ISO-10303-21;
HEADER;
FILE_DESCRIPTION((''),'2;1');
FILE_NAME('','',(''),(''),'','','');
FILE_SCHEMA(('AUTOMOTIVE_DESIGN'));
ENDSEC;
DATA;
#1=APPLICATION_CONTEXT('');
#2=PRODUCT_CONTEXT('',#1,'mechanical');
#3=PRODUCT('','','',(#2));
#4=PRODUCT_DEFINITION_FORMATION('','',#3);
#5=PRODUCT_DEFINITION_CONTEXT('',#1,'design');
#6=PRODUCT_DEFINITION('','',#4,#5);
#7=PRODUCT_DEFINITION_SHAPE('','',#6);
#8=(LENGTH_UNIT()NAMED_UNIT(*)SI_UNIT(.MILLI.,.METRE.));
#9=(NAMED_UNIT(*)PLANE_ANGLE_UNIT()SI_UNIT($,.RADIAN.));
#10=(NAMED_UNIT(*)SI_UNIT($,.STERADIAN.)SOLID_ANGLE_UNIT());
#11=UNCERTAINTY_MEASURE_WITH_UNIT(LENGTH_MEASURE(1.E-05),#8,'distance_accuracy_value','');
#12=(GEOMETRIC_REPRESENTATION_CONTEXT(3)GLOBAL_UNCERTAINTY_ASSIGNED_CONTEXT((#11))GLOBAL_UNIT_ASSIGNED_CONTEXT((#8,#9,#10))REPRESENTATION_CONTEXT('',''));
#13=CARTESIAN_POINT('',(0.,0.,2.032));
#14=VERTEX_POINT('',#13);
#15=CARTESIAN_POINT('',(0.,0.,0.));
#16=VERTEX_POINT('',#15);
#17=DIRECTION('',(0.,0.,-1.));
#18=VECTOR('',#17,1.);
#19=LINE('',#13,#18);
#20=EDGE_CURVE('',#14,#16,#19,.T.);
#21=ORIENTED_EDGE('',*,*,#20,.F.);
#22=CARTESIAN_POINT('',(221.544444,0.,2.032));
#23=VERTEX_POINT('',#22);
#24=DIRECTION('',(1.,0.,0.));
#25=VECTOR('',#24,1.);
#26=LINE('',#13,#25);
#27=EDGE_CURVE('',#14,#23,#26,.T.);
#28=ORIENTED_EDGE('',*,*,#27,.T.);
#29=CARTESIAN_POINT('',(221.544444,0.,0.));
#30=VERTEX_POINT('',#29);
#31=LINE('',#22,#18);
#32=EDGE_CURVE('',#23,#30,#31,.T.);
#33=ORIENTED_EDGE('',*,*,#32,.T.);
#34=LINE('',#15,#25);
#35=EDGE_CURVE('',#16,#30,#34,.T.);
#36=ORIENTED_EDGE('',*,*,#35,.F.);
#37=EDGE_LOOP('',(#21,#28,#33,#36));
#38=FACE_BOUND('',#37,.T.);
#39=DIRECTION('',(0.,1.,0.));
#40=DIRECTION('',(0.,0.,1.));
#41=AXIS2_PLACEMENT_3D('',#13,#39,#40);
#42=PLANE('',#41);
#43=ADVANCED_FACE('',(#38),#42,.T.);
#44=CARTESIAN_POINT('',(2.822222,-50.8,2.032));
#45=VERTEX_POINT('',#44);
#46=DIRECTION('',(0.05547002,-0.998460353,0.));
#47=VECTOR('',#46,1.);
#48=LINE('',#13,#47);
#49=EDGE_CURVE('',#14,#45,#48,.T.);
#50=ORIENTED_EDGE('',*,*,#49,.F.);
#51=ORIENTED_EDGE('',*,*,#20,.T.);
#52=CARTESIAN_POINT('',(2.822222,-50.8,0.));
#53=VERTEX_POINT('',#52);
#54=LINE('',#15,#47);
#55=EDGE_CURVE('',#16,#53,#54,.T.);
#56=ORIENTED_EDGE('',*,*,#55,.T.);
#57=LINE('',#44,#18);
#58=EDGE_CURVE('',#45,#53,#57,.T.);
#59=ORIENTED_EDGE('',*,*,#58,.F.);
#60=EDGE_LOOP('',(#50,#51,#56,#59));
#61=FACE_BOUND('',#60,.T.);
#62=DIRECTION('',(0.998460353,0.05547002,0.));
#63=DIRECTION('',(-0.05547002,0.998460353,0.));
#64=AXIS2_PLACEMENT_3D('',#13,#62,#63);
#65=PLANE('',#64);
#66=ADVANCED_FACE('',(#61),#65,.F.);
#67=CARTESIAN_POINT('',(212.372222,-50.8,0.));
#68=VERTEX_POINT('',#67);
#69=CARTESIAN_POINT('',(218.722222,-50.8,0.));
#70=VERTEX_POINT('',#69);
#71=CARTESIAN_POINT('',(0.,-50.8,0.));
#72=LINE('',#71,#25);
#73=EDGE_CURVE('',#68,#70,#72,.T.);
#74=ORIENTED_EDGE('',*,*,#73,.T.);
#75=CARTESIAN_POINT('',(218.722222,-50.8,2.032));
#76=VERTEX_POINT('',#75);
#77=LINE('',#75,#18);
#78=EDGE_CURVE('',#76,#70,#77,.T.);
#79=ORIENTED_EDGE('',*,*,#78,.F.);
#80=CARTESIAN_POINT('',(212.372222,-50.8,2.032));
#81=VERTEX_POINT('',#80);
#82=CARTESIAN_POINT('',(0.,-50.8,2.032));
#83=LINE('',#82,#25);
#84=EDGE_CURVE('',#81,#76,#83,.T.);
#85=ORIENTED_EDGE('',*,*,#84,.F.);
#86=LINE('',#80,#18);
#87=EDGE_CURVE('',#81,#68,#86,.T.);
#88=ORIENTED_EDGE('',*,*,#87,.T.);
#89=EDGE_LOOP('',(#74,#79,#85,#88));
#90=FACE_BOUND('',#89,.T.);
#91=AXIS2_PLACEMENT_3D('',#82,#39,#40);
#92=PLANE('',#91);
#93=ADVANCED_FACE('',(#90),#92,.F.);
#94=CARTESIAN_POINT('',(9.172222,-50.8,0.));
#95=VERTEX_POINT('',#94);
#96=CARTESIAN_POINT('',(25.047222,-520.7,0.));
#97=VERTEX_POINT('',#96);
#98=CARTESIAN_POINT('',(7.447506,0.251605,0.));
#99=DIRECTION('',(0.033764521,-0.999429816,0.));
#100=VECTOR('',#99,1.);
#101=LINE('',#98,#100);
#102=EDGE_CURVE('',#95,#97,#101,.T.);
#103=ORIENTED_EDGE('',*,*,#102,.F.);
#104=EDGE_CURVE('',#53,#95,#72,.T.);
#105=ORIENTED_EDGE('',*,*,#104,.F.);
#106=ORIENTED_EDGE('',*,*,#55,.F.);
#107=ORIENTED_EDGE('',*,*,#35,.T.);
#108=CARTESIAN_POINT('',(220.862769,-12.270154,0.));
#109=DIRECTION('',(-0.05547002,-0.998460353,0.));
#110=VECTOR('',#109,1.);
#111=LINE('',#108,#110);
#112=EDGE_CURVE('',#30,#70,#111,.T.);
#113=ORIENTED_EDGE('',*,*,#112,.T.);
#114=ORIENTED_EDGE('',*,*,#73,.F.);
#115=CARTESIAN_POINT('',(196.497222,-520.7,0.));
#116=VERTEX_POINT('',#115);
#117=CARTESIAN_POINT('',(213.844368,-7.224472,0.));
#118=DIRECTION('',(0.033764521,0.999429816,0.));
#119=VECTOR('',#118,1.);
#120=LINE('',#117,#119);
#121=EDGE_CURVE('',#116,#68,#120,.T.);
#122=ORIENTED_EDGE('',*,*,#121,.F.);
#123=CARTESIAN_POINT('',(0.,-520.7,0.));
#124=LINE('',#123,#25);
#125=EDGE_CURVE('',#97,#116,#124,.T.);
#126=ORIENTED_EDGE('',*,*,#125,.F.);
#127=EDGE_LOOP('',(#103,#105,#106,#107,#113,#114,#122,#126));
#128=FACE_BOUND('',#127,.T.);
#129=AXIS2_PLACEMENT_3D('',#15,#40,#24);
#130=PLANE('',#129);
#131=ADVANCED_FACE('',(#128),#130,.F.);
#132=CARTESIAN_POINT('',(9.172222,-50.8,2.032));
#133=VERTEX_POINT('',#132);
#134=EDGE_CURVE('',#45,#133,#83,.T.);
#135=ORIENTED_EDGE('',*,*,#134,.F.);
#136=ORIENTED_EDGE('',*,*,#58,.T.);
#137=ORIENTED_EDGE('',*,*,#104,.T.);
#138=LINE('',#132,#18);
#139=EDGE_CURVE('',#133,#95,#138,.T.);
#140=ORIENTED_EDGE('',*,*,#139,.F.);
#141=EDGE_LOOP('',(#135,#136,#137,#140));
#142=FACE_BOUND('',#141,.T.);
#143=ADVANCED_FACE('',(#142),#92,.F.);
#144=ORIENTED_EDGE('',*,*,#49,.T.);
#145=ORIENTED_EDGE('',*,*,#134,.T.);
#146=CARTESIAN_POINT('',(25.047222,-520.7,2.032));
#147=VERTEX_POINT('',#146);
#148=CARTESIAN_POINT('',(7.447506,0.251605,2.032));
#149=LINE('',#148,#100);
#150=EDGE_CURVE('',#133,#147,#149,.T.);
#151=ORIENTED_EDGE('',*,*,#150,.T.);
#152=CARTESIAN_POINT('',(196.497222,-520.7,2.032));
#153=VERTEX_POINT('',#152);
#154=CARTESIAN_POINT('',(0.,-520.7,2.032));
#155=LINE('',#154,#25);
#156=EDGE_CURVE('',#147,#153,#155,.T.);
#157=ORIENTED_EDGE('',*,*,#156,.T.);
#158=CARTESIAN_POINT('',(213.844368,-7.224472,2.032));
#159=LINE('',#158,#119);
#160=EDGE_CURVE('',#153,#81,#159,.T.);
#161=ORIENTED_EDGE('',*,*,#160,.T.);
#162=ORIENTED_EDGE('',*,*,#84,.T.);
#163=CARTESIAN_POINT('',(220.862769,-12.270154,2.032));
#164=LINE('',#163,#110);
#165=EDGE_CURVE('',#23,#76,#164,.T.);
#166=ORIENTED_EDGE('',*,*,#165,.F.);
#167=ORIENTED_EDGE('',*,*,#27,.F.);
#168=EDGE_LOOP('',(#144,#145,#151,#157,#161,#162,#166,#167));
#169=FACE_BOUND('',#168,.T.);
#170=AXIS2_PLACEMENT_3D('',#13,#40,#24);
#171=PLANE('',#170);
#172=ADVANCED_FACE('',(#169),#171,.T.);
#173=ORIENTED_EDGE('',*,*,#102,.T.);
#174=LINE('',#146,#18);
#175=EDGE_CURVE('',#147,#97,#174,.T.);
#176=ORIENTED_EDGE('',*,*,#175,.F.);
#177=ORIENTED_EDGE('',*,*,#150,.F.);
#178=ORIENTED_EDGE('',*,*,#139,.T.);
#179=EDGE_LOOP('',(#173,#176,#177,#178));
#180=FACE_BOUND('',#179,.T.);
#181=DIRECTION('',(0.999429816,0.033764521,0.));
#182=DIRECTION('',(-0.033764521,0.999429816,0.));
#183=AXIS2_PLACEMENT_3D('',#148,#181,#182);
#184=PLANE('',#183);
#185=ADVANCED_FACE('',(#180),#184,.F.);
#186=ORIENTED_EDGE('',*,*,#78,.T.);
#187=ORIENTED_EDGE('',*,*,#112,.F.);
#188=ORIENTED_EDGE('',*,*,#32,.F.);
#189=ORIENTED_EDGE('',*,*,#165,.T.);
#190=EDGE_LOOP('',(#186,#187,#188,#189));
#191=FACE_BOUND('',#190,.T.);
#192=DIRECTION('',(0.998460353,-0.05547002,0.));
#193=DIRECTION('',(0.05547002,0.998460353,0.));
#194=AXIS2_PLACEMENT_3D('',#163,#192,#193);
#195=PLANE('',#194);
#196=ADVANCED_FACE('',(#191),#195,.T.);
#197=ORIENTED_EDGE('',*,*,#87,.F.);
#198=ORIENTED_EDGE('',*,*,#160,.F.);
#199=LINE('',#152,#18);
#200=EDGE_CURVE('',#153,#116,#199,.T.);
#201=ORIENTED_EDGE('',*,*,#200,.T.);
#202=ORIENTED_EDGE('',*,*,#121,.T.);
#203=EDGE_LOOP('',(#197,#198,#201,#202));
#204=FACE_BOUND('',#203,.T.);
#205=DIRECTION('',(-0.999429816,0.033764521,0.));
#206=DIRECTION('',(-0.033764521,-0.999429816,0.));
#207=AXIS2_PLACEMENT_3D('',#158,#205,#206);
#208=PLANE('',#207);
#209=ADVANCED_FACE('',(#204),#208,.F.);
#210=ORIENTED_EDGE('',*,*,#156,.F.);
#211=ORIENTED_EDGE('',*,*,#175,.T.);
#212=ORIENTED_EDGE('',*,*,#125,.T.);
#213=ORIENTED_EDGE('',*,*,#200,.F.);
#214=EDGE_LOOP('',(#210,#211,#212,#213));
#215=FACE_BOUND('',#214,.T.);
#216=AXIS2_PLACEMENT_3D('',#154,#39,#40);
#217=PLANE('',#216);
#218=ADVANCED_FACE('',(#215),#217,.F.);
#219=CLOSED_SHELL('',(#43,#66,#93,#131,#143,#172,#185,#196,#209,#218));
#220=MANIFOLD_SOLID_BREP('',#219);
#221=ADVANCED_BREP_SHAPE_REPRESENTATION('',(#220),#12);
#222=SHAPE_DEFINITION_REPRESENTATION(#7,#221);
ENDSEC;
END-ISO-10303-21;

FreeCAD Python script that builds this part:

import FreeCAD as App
import Part
import Sketcher

V = App.Vector
Q = App.Units.Quantity

doc = App.newDocument("Part")
params = doc.addObject("Spreadsheet::Sheet", "Params")
for row, (alias, value) in enumerate([
    ("sketch1_width", "0.25 in"),
    ("sketch1_width2", "6.75 in"),
    ("pad1_length", "0.08 in"),
], start=1):
    params.set(f"A{row}", alias)
    params.set(f"B{row}", "=" + value)
    params.setAlias(f"B{row}", alias)

body = doc.addObject("PartDesign::Body", "Body")

sketch1 = body.newObject("Sketcher::SketchObject", "Sketch")
sketch1.AttachmentSupport = (doc.getObject("XY_Plane"), [""])
sketch1.MapMode = "FlatFace"
sketch1.addGeometry([
    Part.LineSegment(V(219, -51, 0), V(222, 0, 0)),
    Part.LineSegment(V(222, 0, 0), V(0, 0, 0)),
    Part.LineSegment(V(0, 0, 0), V(3, -51, 0)),
    Part.LineSegment(V(3, -51, 0), V(9, -51, 0)),
    Part.LineSegment(V(9, -51, 0), V(25, -521, 0)),
    Part.LineSegment(V(25, -521, 0), V(196, -521, 0)),
    Part.LineSegment(V(196, -521, 0), V(212, -51, 0)),
    Part.LineSegment(V(212, -51, 0), V(219, -51, 0)),
], False)
sketch1.addConstraint([
    Sketcher.Constraint("Coincident", 0, 2, 1, 1),
    Sketcher.Constraint("Coincident", 1, 2, 2, 1),
    Sketcher.Constraint("Coincident", 2, 2, 3, 1),
    Sketcher.Constraint("Coincident", 3, 2, 4, 1),
    Sketcher.Constraint("Coincident", 4, 2, 5, 1),
    Sketcher.Constraint("Coincident", 5, 2, 6, 1),
    Sketcher.Constraint("Coincident", 6, 2, 7, 1),
    Sketcher.Constraint("Coincident", 7, 2, 0, 1),
    Sketcher.Constraint("Horizontal", 1),
    Sketcher.Constraint("Horizontal", 3),
    Sketcher.Constraint("Horizontal", 5),
    Sketcher.Constraint("Horizontal", 7),
    Sketcher.Constraint("Coincident", 1, 2, -1, 1),
    Sketcher.Constraint("Horizontal", 3, 2, 6, 2),
    Sketcher.Constraint("Equal", 3, 7),
    Sketcher.Constraint("Equal", 0, 2),
    Sketcher.Constraint("Equal", 4, 6),
    Sketcher.Constraint("DistanceY", 2, 2, -1, 1, Q("2 in")),
    Sketcher.Constraint("DistanceX", 3, 2, 6, 2, Q("8 in")),
    Sketcher.Constraint("DistanceX", 3, 1, 3, 2, Q("0.25 in")),
    Sketcher.Constraint("DistanceX", 5, 1, 5, 2, Q("6.75 in")),
    Sketcher.Constraint("DistanceY", 4, 2, -1, 1, Q("20.5 in")),
    Sketcher.Constraint("DistanceX", 1, 2, 1, 1, Q("221.544444 mm")),
])
sketch1.setExpression("Constraints[19]", "Params.sketch1_width")
sketch1.setExpression("Constraints[20]", "Params.sketch1_width2")
pad1 = body.newObject("PartDesign::Pad", "Pad")
pad1.Profile = sketch1
pad1.setExpression("Length", "Params.pad1_length")

doc.recompute()
